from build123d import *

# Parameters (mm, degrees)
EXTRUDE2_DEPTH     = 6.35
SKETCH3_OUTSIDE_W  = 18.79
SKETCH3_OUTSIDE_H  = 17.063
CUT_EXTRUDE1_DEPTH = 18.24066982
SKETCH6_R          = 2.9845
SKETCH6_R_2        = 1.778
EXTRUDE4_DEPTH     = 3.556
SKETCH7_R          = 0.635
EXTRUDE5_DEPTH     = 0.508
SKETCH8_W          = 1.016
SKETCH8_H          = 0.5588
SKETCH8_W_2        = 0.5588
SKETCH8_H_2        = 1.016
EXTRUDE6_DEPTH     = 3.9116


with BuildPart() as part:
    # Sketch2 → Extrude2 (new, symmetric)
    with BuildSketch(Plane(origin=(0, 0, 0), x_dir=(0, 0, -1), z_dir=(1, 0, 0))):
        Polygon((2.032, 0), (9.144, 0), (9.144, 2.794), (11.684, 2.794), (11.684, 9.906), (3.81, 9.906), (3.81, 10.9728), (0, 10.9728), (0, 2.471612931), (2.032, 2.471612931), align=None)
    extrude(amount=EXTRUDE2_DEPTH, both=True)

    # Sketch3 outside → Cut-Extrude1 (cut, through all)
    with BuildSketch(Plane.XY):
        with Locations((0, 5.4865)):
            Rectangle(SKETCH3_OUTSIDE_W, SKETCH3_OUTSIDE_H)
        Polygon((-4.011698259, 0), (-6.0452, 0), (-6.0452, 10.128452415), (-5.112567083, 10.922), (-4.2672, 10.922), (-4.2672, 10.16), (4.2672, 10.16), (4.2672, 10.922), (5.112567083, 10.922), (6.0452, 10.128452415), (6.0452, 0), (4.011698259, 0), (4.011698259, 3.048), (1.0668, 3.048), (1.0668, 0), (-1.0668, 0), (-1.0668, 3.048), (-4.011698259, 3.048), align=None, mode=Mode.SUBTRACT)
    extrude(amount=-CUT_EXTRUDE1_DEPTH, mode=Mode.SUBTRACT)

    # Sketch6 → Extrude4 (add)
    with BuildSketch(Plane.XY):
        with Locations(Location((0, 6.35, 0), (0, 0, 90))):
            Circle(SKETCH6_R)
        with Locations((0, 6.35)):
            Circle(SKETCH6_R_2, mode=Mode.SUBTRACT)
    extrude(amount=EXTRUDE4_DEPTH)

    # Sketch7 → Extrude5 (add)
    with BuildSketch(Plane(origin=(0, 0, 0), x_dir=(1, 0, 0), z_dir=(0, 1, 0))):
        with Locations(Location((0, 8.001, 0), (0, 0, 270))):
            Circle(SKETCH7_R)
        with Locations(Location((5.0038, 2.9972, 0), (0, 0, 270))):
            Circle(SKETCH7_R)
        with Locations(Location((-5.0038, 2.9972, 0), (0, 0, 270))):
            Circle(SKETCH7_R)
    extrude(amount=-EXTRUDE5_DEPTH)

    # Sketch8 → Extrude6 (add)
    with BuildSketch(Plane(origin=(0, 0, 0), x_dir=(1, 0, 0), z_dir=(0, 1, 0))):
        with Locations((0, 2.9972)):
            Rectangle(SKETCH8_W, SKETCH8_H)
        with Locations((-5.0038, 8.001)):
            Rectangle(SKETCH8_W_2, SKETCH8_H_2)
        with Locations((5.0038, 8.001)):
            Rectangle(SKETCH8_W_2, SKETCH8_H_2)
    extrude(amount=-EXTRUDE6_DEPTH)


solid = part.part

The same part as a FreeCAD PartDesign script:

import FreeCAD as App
import Part
import Sketcher
Q = App.Units.Quantity

doc = App.newDocument("Part")
body = doc.addObject("PartDesign::Body", "Body")

# Sketch on YZ plane
sketch1 = body.newObject("Sketcher::SketchObject", "Sketch")
sketch1.AttachmentSupport = (doc.getObject("YZ_Plane"), [""])
sketch1.MapMode = "FlatFace"
sketch1.addGeometry([
    Part.LineSegment(App.Vector(0, -2, 0), App.Vector(0, -9.1, 0)),  # 0
    Part.LineSegment(App.Vector(0, -9.1, 0), App.Vector(2.8, -9.1, 0)),  # 1
    Part.LineSegment(App.Vector(2.8, -9.1, 0), App.Vector(2.8, -11.7, 0)),  # 2
    Part.LineSegment(App.Vector(2.8, -11.7, 0), App.Vector(9.9, -11.7, 0)),  # 3
    Part.LineSegment(App.Vector(9.9, -11.7, 0), App.Vector(9.9, -3.8, 0)),  # 4
    Part.LineSegment(App.Vector(9.9, -3.8, 0), App.Vector(11, -3.8, 0)),  # 5
    Part.LineSegment(App.Vector(11, -3.8, 0), App.Vector(11, 0, 0)),  # 6
    Part.LineSegment(App.Vector(11, 0, 0), App.Vector(2.5, 0, 0)),  # 7
    Part.LineSegment(App.Vector(2.5, 0, 0), App.Vector(2.5, -2, 0)),  # 8
    Part.LineSegment(App.Vector(2.5, -2, 0), App.Vector(0, -2, 0)),  # 9
], False)
sketch1.addConstraint([
    Sketcher.Constraint("Coincident", 0, 2, 1, 1),
    Sketcher.Constraint("Coincident", 1, 2, 2, 1),
    Sketcher.Constraint("Coincident", 2, 2, 3, 1),
    Sketcher.Constraint("Coincident", 3, 2, 4, 1),
    Sketcher.Constraint("Coincident", 4, 2, 5, 1),
    Sketcher.Constraint("Coincident", 5, 2, 6, 1),
    Sketcher.Constraint("Coincident", 6, 2, 7, 1),
    Sketcher.Constraint("Coincident", 7, 2, 8, 1),
    Sketcher.Constraint("Coincident", 8, 2, 9, 1),
    Sketcher.Constraint("Coincident", 9, 2, 0, 1),
    Sketcher.Constraint("Vertical", 0),
    Sketcher.Constraint("Horizontal", 1),
    Sketcher.Constraint("Vertical", 2),
    Sketcher.Constraint("Horizontal", 3),
    Sketcher.Constraint("Vertical", 4),
    Sketcher.Constraint("Horizontal", 5),
    Sketcher.Constraint("Vertical", 6),
    Sketcher.Constraint("Horizontal", 7),
    Sketcher.Constraint("Vertical", 8),
    Sketcher.Constraint("Horizontal", 9),
    Sketcher.Constraint("PointOnObject", 0, 2, -2),
    Sketcher.Constraint("PointOnObject", 6, 2, -1),
    Sketcher.Constraint("Equal", 3, 0),
    Sketcher.Constraint("DistanceY", 2, 2, 2, 1, Q("0.1 in")),
    Sketcher.Constraint("DistanceX", 1, 1, 1, 2, Q("0.11 in")),
    Sketcher.Constraint("DistanceX", 3, 1, 3, 2, Q("0.28 in")),
    Sketcher.Constraint("DistanceY", 4, 1, 4, 2, Q("0.31 in")),
    Sketcher.Constraint("DistanceY", 6, 1, 6, 2, Q("0.15 in")),
    Sketcher.Constraint("DistanceX", 5, 1, 5, 2, Q("0.042 in")),
    Sketcher.Constraint("DistanceX", 7, 2, 7, 1, 8.501187),
])
pad1 = body.newObject("PartDesign::Pad", "Pad")
pad1.Profile = sketch1
pad1.Length = Q("0.5 in")
pad1.Midplane = True

# Sketch on XY plane
sketch2 = body.newObject("Sketcher::SketchObject", "Sketch001")
sketch2.AttachmentSupport = (doc.getObject("XY_Plane"), [""])
sketch2.MapMode = "FlatFace"
sketch2.addGeometry([
    Part.LineSegment(App.Vector(-9.4, 14, 0), App.Vector(-9.4, -3, 0)),  # 0
    Part.LineSegment(App.Vector(-9.4, -3, 0), App.Vector(9.4, -3, 0)),  # 1
    Part.LineSegment(App.Vector(9.4, -3, 0), App.Vector(9.4, 14, 0)),  # 2
    Part.LineSegment(App.Vector(9.4, 14, 0), App.Vector(-9.4, 14, 0)),  # 3
    Part.LineSegment(App.Vector(-4, 3, 0), App.Vector(-4, 0, 0)),  # 4
    Part.LineSegment(App.Vector(-4, 0, 0), App.Vector(-6, 0, 0)),  # 5
    Part.LineSegment(App.Vector(-6, 0, 0), App.Vector(-6, 10.1, 0)),  # 6
    Part.LineSegment(App.Vector(-6, 10.1, 0), App.Vector(-5.1, 10.9, 0)),  # 7
    Part.LineSegment(App.Vector(-5.1, 10.9, 0), App.Vector(-4.3, 10.9, 0)),  # 8
    Part.LineSegment(App.Vector(-4.3, 10.9, 0), App.Vector(-4.3, 10.2, 0)),  # 9
    Part.LineSegment(App.Vector(-4.3, 10.2, 0), App.Vector(4.3, 10.2, 0)),  # 10
    Part.LineSegment(App.Vector(4.3, 10.2, 0), App.Vector(4.3, 10.9, 0)),  # 11
    Part.LineSegment(App.Vector(4.3, 10.9, 0), App.Vector(5.1, 10.9, 0)),  # 12
    Part.LineSegment(App.Vector(5.1, 10.9, 0), App.Vector(6, 10.1, 0)),  # 13
    Part.LineSegment(App.Vector(6, 10.1, 0), App.Vector(6, 0, 0)),  # 14
    Part.LineSegment(App.Vector(6, 0, 0), App.Vector(4, 0, 0)),  # 15
    Part.LineSegment(App.Vector(4, 0, 0), App.Vector(4, 3, 0)),  # 16
    Part.LineSegment(App.Vector(4, 3, 0), App.Vector(1.1, 3, 0)),  # 17
    Part.LineSegment(App.Vector(1.1, 3, 0), App.Vector(1.1, 0, 0)),  # 18
    Part.LineSegment(App.Vector(1.1, 0, 0), App.Vector(-1.1, 0, 0)),  # 19
    Part.LineSegment(App.Vector(-1.1, 0, 0), App.Vector(-1.1, 3, 0)),  # 20
    Part.LineSegment(App.Vector(-1.1, 3, 0), App.Vector(-4, 3, 0)),  # 21
], False)
sketch2.addConstraint([
    Sketcher.Constraint("Coincident", 0, 2, 1, 1),
    Sketcher.Constraint("Coincident", 1, 2, 2, 1),
    Sketcher.Constraint("Coincident", 2, 2, 3, 1),
    Sketcher.Constraint("Coincident", 3, 2, 0, 1),
    Sketcher.Constraint("Coincident", 4, 2, 5, 1),
    Sketcher.Constraint("Coincident", 5, 2, 6, 1),
    Sketcher.Constraint("Coincident", 6, 2, 7, 1),
    Sketcher.Constraint("Coincident", 7, 2, 8, 1),
    Sketcher.Constraint("Coincident", 8, 2, 9, 1),
    Sketcher.Constraint("Coincident", 9, 2, 10, 1),
    Sketcher.Constraint("Coincident", 10, 2, 11, 1),
    Sketcher.Constraint("Coincident", 11, 2, 12, 1),
    Sketcher.Constraint("Coincident", 12, 2, 13, 1),
    Sketcher.Constraint("Coincident", 13, 2, 14, 1),
    Sketcher.Constraint("Coincident", 14, 2, 15, 1),
    Sketcher.Constraint("Coincident", 15, 2, 16, 1),
    Sketcher.Constraint("Coincident", 16, 2, 17, 1),
    Sketcher.Constraint("Coincident", 17, 2, 18, 1),
    Sketcher.Constraint("Coincident", 18, 2, 19, 1),
    Sketcher.Constraint("Coincident", 19, 2, 20, 1),
    Sketcher.Constraint("Coincident", 20, 2, 21, 1),
    Sketcher.Constraint("Coincident", 21, 2, 4, 1),
    Sketcher.Constraint("Vertical", 0),
    Sketcher.Constraint("Horizontal", 1),
    Sketcher.Constraint("Vertical", 2),
    Sketcher.Constraint("Horizontal", 3),
    Sketcher.Constraint("Vertical", 4),
    Sketcher.Constraint("Horizontal", 5),
    Sketcher.Constraint("Vertical", 6),
    Sketcher.Constraint("Horizontal", 8),
    Sketcher.Constraint("Vertical", 9),
    Sketcher.Constraint("Horizontal", 10),
    Sketcher.Constraint("Vertical", 11),
    Sketcher.Constraint("Horizontal", 12),
    Sketcher.Constraint("Vertical", 14),
    Sketcher.Constraint("Horizontal", 15),
    Sketcher.Constraint("Vertical", 16),
    Sketcher.Constraint("Horizontal", 17),
    Sketcher.Constraint("Vertical", 18),
    Sketcher.Constraint("Horizontal", 19),
    Sketcher.Constraint("Vertical", 20),
    Sketcher.Constraint("Horizontal", 21),
    Sketcher.Constraint("Symmetric", 5, 2, 14, 2, -1, 1),
    Sketcher.Constraint("Symmetric", 18, 2, 19, 2, -1, 1),
    Sketcher.Constraint("Symmetric", 8, 2, 11, 2, -2),
    Sketcher.Constraint("Symmetric", 4, 2, 15, 2, -2),
    Sketcher.Constraint("Horizontal", 6, 2, 13, 2),
    Sketcher.Constraint("Horizontal", 17, 2, 20, 2),
    Sketcher.Constraint("Equal", 8, 12),
    Sketcher.Constraint("DistanceY", 4, 2, 4, 1, Q("0.12 in")),
    Sketcher.Constraint("DistanceY", 9, 2, 9, 1, Q("0.03 in")),
    Sketcher.Constraint("DistanceY", -1, 1, 9, 2, Q("0.4 in")),
    Sketcher.Constraint("DistanceX", 10, 1, 10, 2, Q("0.336 in")),
    Sketcher.Constraint("DistanceX", 19, 2, 19, 1, Q("0.084 in")),
    Sketcher.Constraint("DistanceX", 6, 2, 8, 2, Q("0.07 in")),
    Sketcher.Constraint("DistanceX", 1, 1, 1, 2, 18.79),
    Sketcher.Constraint("DistanceX", 5, 2, 5, 1, 2.033502),
    Sketcher.Constraint("DistanceY", 0, 2, 0, 1, 17.063),
    Sketcher.Constraint("DistanceX", 0, 2, -1, 1, 9.395),
    Sketcher.Constraint("DistanceY", 0, 2, -1, 1, 3.045),
    Sketcher.Constraint("Distance", 7, 1.22455),
    Sketcher.Constraint("DistanceX", 8, 1, 8, 2, 0.845367),
])
pocket1 = body.newObject("PartDesign::Pocket", "Pocket")
pocket1.Profile = sketch2
pocket1.Type = "ThroughAll"

# Sketch on XY plane
sketch3 = body.newObject("Sketcher::SketchObject", "Sketch002")
sketch3.AttachmentSupport = (doc.getObject("XY_Plane"), [""])
sketch3.MapMode = "FlatFace"
sketch3.addGeometry([
    Part.Circle(App.Vector(0, 6.3, 0), App.Vector(0, 0, 1), 3),
    Part.Circle(App.Vector(0, 6.3, 0), App.Vector(0, 0, 1), 1.8),
], False)
sketch3.addConstraint([
    Sketcher.Constraint("Coincident", 1, 3, 0, 3),
    Sketcher.Constraint("PointOnObject", 0, 3, -2),
    Sketcher.Constraint("Diameter", 1, Q("0.14 in")),
    Sketcher.Constraint("Diameter", 0, Q("0.235 in")),
    Sketcher.Constraint("DistanceY", -1, 1, 0, 3, Q("0.25 in")),
])
pad2 = body.newObject("PartDesign::Pad", "Pad001")
pad2.Profile = sketch3
pad2.Length = Q("0.14 in")

# Sketch on XZ plane
sketch4 = body.newObject("Sketcher::SketchObject", "Sketch003")
sketch4.AttachmentSupport = (doc.getObject("XZ_Plane"), [""])
sketch4.MapMode = "FlatFace"
sketch4.addGeometry([
    Part.Circle(App.Vector(0, -8, 0), App.Vector(0, 0, 1), 0.6),
    Part.Circle(App.Vector(5, -3, 0), App.Vector(0, 0, 1), 0.6),
    Part.Circle(App.Vector(-5, -3, 0), App.Vector(0, 0, 1), 0.6),
], False)
sketch4.addConstraint([
    Sketcher.Constraint("Equal", 0, 1),
    Sketcher.Constraint("Equal", 1, 2),
    Sketcher.Constraint("Symmetric", 1, 3, 2, 3, -2),
    Sketcher.Constraint("PointOnObject", 0, 3, -2),
    Sketcher.Constraint("Diameter", 0, Q("0.05 in")),
    Sketcher.Constraint("DistanceY", 0, 3, -1, 1, Q("0.315 in")),
    Sketcher.Constraint("DistanceX", -1, 1, 1, 3, Q("0.197 in")),
    Sketcher.Constraint("DistanceY", 1, 3, -1, 1, Q("0.118 in")),
])
pad3 = body.newObject("PartDesign::Pad", "Pad002")
pad3.Profile = sketch4
pad3.Length = Q("0.02 in")

# Sketch on XZ plane
sketch5 = body.newObject("Sketcher::SketchObject", "Sketch004")
sketch5.AttachmentSupport = (doc.getObject("XZ_Plane"), [""])
sketch5.MapMode = "FlatFace"
sketch5.addGeometry([
    Part.LineSegment(App.Vector(-0.5, -3.3, 0), App.Vector(-0.5, -2.7, 0)),  # 0
    Part.LineSegment(App.Vector(-0.5, -2.7, 0), App.Vector(0.5, -2.7, 0)),  # 1
    Part.LineSegment(App.Vector(0.5, -2.7, 0), App.Vector(0.5, -3.3, 0)),  # 2
    Part.LineSegment(App.Vector(0.5, -3.3, 0), App.Vector(-0.5, -3.3, 0)),  # 3
    Part.LineSegment(App.Vector(-5.3, -8.5, 0), App.Vector(-5.3, -7.5, 0)),  # 4
    Part.LineSegment(App.Vector(-5.3, -7.5, 0), App.Vector(-4.7, -7.5, 0)),  # 5
    Part.LineSegment(App.Vector(-4.7, -7.5, 0), App.Vector(-4.7, -8.5, 0)),  # 6
    Part.LineSegment(App.Vector(-4.7, -8.5, 0), App.Vector(-5.3, -8.5, 0)),  # 7
    Part.LineSegment(App.Vector(4.7, -8.5, 0), App.Vector(4.7, -7.5, 0)),  # 8
    Part.LineSegment(App.Vector(4.7, -7.5, 0), App.Vector(5.3, -7.5, 0)),  # 9
    Part.LineSegment(App.Vector(5.3, -7.5, 0), App.Vector(5.3, -8.5, 0)),  # 10
    Part.LineSegment(App.Vector(5.3, -8.5, 0), App.Vector(4.7, -8.5, 0)),  # 11
], False)
sketch5.addConstraint([
    Sketcher.Constraint("Coincident", 0, 2, 1, 1),
    Sketcher.Constraint("Coincident", 1, 2, 2, 1),
    Sketcher.Constraint("Coincident", 2, 2, 3, 1),
    Sketcher.Constraint("Coincident", 3, 2, 0, 1),
    Sketcher.Constraint("Coincident", 4, 2, 5, 1),
    Sketcher.Constraint("Coincident", 5, 2, 6, 1),
    Sketcher.Constraint("Coincident", 6, 2, 7, 1),
    Sketcher.Constraint("Coincident", 7, 2, 4, 1),
    Sketcher.Constraint("Coincident", 8, 2, 9, 1),
    Sketcher.Constraint("Coincident", 9, 2, 10, 1),
    Sketcher.Constraint("Coincident", 10, 2, 11, 1),
    Sketcher.Constraint("Coincident", 11, 2, 8, 1),
    Sketcher.Constraint("Vertical", 0),
    Sketcher.Constraint("Horizontal", 1),
    Sketcher.Constraint("Vertical", 2),
    Sketcher.Constraint("Horizontal", 3),
    Sketcher.Constraint("Vertical", 4),
    Sketcher.Constraint("Horizontal", 5),
    Sketcher.Constraint("Vertical", 6),
    Sketcher.Constraint("Horizontal", 7),
    Sketcher.Constraint("Vertical", 8),
    Sketcher.Constraint("Horizontal", 9),
    Sketcher.Constraint("Vertical", 10),
    Sketcher.Constraint("Horizontal", 11),
    Sketcher.Constraint("Symmetric", 5, 2, 8, 2, -2),
    Sketcher.Constraint("Symmetric", 7, 2, 10, 2, -2),
    Sketcher.Constraint("Equal", 11, 0),
    Sketcher.Constraint("Equal", 3, 4),
    Sketcher.Constraint("DistanceX", 1, 1, 1, 2, Q("0.04 in")),
    Sketcher.Constraint("DistanceX", 5, 1, 5, 2, Q("0.022 in")),
    Sketcher.Constraint("DistanceX", 0, 2, -1, 1, Q("0.02 in")),
    Sketcher.Constraint("DistanceY", 0, 2, -1, 1, Q("0.107 in")),
    Sketcher.Constraint("DistanceX", 4, 2, -1, 1, Q("0.208 in")),
    Sketcher.Constraint("DistanceY", 4, 2, -1, 1, Q("0.295 in")),
])
pad4 = body.newObject("PartDesign::Pad", "Pad003")
pad4.Profile = sketch5
pad4.Length = Q("0.154 in")

doc.recompute()
